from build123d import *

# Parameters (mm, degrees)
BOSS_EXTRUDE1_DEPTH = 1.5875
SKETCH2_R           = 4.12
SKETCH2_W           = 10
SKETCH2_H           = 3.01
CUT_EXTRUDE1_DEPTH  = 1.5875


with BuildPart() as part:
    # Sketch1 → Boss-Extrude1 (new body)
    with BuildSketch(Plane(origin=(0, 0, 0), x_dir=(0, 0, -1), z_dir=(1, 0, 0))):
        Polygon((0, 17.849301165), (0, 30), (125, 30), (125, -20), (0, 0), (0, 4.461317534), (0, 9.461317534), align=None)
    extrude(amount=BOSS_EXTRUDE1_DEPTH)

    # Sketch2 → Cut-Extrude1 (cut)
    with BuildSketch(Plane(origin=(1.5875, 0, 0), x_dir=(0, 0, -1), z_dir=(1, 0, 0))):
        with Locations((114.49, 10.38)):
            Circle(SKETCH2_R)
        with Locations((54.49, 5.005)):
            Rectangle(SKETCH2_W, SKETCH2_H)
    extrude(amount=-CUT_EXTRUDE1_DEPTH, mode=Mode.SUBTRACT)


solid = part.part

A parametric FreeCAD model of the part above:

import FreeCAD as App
import Part
import Sketcher
from FreeCAD import Vector

doc = App.newDocument("Part")
body = doc.addObject("PartDesign::Body", "Body")

sketch1 = body.newObject("Sketcher::SketchObject", "Sketch")
sketch1.AttachmentSupport = (doc.getObject("YZ_Plane"), [""])
sketch1.MapMode = "FlatFace"
sketch1.addGeometry([
    Part.LineSegment(Vector(30, 0, 0), Vector(0, 0, 0)),
    Part.LineSegment(Vector(0, 0, 0), Vector(-20, -125, 0)),
    Part.LineSegment(Vector(-20, -125, 0), Vector(30, -125, 0)),
    Part.LineSegment(Vector(30, -125, 0), Vector(30, 0, 0)),
], False)
sketch1.addConstraint([
    Sketcher.Constraint("Coincident", 0, 2, 1, 1),
    Sketcher.Constraint("Coincident", 1, 2, 2, 1),
    Sketcher.Constraint("Coincident", 2, 2, 3, 1),
    Sketcher.Constraint("Coincident", 3, 2, 0, 1),
    Sketcher.Constraint("Horizontal", 0),
    Sketcher.Constraint("Horizontal", 2),
    Sketcher.Constraint("Vertical", 3),
    Sketcher.Constraint("Coincident", 0, 2, -1, 1),
    Sketcher.Constraint("DistanceX", 0, 2, 0, 1, 30.0),
    Sketcher.Constraint("DistanceX", 2, 1, 2, 2, 50.0),
    Sketcher.Constraint("DistanceY", 3, 1, 3, 2, 125.0),
])
pad1 = body.newObject("PartDesign::Pad", "Pad")
pad1.Profile = sketch1
pad1.Length = 1.5875

sketch2 = body.newObject("Sketcher::SketchObject", "Sketch001")
sketch2.AttachmentSupport = (doc.getObject("YZ_Plane"), [""])
sketch2.MapMode = "FlatFace"
sketch2.AttachmentOffset = App.Placement(Vector(0, 0, 1.5875), App.Rotation())
sketch2.addGeometry([
    Part.Circle(Vector(10.4, -114.5, 0), Vector(0, 0, 1), 4.1),
    Part.LineSegment(Vector(6.5, -49.5, 0), Vector(3.5, -49.5, 0)),
    Part.LineSegment(Vector(3.5, -49.5, 0), Vector(3.5, -59.5, 0)),
    Part.LineSegment(Vector(3.5, -59.5, 0), Vector(6.5, -59.5, 0)),
    Part.LineSegment(Vector(6.5, -59.5, 0), Vector(6.5, -49.5, 0)),
], False)
sketch2.addConstraint([
    Sketcher.Constraint("Coincident", 1, 2, 2, 1),
    Sketcher.Constraint("Coincident", 2, 2, 3, 1),
    Sketcher.Constraint("Coincident", 3, 2, 4, 1),
    Sketcher.Constraint("Coincident", 4, 2, 1, 1),
    Sketcher.Constraint("Horizontal", 1),
    Sketcher.Constraint("Vertical", 2),
    Sketcher.Constraint("Horizontal", 3),
    Sketcher.Constraint("Vertical", 4),
    Sketcher.Constraint("Diameter", 0, 8.24),
    Sketcher.Constraint("DistanceY", 2, 2, 2, 1, 10.0),
    Sketcher.Constraint("DistanceY", 0, 3, 1, 2, 65.0),
    Sketcher.Constraint("DistanceX", 1, 2, 1, 1, 3.01),
    Sketcher.Constraint("DistanceX", -1, 1, 1, 2, 3.5),
    Sketcher.Constraint("DistanceX", -1, 1, 0, 3, 10.38),
    Sketcher.Constraint("DistanceY", 0, 3, -1, 1, 114.49),
])
pocket1 = body.newObject("PartDesign::Pocket", "Pocket")
pocket1.Profile = sketch2
pocket1.Length = 1.5875

doc.recompute()
